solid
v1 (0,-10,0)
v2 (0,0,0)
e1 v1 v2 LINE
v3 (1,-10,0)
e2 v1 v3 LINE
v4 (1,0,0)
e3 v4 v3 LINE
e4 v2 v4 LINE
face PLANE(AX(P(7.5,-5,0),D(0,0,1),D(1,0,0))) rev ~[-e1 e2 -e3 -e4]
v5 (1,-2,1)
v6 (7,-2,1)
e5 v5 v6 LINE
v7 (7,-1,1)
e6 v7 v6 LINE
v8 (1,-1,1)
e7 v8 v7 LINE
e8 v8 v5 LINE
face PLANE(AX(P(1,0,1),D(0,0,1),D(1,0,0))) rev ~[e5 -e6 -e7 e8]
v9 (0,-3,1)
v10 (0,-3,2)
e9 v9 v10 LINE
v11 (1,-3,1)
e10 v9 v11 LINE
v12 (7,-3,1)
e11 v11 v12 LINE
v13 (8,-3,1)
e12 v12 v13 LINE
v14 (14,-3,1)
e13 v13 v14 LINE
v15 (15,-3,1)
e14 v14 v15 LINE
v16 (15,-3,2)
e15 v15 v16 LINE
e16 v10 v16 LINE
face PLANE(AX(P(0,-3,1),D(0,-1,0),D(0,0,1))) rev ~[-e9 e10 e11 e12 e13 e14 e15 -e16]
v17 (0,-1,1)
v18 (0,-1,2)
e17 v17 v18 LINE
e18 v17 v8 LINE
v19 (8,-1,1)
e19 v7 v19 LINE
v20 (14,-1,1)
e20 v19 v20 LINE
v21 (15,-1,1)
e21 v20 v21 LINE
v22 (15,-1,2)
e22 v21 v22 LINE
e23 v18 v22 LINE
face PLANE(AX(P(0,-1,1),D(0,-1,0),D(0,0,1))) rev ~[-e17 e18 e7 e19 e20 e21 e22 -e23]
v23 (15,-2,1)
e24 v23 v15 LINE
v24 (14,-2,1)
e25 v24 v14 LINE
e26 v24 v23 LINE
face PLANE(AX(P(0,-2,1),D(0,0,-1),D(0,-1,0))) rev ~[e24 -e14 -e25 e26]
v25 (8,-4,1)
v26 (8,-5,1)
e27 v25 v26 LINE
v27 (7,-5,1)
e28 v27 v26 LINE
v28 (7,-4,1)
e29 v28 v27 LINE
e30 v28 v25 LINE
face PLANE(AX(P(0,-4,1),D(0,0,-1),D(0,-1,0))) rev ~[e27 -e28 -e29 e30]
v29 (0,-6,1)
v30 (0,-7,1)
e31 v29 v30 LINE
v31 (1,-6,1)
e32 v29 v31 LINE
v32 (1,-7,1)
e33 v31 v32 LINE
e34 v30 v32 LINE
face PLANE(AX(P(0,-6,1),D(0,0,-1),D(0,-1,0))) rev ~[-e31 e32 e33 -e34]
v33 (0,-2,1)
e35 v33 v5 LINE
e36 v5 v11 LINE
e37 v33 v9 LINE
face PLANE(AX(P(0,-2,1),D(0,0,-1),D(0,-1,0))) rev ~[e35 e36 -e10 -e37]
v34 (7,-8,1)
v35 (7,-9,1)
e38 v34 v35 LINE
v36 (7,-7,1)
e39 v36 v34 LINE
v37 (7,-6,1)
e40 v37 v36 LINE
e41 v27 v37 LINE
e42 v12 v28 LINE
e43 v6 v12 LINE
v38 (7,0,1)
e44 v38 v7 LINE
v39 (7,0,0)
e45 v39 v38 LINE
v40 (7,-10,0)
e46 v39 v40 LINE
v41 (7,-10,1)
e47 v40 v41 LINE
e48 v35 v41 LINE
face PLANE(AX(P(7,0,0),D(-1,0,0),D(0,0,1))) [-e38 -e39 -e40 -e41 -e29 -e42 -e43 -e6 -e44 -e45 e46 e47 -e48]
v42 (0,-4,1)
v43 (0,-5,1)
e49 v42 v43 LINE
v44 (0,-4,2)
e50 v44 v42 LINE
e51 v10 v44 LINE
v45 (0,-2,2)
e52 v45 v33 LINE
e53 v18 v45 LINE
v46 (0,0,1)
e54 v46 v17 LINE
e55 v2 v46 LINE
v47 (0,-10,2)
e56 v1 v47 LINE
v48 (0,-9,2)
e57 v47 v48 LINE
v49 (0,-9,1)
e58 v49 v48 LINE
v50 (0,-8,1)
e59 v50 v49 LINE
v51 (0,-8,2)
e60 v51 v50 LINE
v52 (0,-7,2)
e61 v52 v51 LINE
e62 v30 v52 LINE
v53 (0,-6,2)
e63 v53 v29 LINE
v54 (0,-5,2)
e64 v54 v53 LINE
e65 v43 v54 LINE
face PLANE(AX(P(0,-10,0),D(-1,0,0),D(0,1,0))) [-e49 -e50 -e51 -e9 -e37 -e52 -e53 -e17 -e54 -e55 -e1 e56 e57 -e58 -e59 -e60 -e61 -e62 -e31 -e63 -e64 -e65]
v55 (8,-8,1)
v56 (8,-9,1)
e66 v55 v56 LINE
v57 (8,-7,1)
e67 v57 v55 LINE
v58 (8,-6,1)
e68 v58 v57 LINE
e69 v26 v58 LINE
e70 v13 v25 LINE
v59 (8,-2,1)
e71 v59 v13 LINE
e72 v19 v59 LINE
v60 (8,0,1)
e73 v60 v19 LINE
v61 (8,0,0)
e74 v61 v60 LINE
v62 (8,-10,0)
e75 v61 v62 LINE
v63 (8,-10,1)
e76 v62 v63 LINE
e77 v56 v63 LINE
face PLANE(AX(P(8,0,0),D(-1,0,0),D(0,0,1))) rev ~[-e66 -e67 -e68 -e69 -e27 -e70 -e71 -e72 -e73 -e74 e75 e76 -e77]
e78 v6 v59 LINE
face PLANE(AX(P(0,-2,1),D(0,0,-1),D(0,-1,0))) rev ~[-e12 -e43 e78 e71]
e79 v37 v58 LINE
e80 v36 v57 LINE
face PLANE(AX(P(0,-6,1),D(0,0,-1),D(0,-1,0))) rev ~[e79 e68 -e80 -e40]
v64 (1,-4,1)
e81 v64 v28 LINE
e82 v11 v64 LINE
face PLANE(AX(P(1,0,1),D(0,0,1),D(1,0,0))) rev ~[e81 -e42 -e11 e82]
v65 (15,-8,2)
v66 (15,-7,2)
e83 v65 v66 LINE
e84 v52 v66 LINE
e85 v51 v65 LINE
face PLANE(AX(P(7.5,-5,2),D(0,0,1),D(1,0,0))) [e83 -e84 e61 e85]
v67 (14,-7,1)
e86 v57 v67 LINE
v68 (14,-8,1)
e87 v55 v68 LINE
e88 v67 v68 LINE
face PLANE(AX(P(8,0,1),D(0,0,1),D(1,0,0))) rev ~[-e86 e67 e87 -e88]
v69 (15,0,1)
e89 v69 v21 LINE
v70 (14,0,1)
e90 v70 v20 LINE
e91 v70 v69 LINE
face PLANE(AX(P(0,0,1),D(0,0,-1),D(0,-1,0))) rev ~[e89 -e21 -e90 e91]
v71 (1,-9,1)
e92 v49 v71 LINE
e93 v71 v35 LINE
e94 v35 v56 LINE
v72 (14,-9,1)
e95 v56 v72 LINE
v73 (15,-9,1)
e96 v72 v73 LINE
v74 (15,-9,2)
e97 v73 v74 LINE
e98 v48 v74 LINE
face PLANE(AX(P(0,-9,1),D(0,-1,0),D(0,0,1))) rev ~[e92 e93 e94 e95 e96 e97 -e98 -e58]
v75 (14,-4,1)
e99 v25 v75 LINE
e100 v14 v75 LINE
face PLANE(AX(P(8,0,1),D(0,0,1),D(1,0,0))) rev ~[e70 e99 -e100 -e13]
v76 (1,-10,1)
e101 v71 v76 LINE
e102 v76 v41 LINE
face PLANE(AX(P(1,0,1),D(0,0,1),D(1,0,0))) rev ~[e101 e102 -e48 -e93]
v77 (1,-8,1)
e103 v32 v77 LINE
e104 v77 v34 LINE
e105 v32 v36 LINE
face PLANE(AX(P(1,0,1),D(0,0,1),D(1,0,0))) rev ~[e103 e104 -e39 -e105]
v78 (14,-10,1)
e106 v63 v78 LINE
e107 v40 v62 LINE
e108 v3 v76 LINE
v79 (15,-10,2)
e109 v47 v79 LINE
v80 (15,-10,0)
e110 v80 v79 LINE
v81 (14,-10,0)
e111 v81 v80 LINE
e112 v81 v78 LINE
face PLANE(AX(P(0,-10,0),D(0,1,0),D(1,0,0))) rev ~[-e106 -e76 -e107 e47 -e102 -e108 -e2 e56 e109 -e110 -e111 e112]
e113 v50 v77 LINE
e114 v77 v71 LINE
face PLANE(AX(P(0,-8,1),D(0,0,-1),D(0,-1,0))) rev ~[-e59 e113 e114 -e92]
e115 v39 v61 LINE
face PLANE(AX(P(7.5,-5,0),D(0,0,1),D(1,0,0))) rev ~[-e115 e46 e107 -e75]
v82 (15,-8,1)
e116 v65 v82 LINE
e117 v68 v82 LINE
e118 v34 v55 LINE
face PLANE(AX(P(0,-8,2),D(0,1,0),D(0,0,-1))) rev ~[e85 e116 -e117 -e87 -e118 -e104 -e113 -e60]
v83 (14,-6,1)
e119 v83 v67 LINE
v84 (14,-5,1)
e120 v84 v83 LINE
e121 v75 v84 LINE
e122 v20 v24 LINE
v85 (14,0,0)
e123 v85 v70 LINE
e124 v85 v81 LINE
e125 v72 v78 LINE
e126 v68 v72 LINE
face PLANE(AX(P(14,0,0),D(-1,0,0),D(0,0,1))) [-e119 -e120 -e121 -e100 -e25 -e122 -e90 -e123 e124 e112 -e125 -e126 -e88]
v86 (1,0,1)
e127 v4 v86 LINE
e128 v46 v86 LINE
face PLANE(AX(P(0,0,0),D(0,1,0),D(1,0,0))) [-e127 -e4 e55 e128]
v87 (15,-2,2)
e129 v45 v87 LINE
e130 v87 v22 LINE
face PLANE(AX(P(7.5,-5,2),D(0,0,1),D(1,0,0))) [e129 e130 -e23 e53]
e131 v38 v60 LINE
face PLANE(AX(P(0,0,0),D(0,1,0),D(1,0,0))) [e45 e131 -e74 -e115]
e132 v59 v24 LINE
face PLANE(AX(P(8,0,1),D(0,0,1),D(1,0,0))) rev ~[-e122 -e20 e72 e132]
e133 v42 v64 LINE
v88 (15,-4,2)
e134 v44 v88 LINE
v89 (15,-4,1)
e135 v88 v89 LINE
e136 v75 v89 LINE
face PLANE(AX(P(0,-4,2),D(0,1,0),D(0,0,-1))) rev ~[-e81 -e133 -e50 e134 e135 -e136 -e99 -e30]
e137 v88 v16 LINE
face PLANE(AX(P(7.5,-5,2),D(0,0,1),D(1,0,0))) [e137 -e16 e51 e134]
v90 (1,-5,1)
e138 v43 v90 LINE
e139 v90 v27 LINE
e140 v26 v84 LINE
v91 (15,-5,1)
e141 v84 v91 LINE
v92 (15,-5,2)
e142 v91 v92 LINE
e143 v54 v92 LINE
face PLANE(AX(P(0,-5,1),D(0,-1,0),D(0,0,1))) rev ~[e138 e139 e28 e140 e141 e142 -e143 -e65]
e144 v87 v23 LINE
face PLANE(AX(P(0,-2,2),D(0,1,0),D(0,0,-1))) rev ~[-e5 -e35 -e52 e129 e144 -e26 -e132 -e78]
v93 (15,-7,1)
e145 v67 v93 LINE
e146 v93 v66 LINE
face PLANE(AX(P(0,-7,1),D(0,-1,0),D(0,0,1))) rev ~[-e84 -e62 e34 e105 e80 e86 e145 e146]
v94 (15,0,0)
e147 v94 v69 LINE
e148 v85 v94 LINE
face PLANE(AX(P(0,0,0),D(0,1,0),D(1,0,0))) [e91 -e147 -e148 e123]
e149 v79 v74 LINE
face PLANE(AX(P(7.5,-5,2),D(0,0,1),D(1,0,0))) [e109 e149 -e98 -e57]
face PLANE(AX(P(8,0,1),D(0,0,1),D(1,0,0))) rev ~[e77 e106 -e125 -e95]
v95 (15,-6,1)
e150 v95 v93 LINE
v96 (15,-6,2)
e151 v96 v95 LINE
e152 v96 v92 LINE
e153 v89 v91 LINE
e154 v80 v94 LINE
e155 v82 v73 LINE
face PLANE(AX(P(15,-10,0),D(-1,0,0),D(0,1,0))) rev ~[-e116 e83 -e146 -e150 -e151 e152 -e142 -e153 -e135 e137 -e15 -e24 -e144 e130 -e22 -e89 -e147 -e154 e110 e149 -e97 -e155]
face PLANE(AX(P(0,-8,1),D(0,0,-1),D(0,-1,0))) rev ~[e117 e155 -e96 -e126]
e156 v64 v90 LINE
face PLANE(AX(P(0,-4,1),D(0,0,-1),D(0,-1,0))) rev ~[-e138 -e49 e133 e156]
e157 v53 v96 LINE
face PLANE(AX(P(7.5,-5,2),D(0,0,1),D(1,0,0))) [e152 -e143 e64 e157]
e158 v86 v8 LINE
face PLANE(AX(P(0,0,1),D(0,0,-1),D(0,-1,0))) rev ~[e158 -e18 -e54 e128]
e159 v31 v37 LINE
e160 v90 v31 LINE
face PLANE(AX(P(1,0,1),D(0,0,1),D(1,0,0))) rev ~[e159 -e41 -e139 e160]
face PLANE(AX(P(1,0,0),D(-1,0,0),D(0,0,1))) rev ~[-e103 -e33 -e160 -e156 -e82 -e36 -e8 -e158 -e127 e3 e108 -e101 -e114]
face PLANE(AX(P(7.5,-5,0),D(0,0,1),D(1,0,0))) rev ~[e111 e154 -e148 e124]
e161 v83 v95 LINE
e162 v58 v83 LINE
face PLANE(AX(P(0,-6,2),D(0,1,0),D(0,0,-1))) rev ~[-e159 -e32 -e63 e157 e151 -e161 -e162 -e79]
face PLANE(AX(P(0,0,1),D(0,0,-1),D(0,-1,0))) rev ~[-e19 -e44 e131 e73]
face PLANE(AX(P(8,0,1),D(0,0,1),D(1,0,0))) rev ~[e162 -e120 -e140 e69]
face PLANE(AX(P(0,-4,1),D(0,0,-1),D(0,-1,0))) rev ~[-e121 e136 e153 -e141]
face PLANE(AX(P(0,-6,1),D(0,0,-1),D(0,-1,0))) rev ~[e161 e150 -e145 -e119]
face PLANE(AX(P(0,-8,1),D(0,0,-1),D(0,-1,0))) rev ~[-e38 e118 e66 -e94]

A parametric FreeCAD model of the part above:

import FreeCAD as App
import Part
import Sketcher
from FreeCAD import Vector
Q = App.Units.Quantity

doc = App.newDocument("Part")
params = doc.addObject("Spreadsheet::Sheet", "Params")
for row, (alias, value) in enumerate([
    ("sketch1_width", "15 mm"),
    ("sketch1_height", "10 mm"),
    ("pad1_length", "2 mm"),
    ("sketch2_width", "6 mm"),
    ("sketch2_height", "1 mm"),
    ("pocket1_length", "25 mm"),
    ("sketch3_width", "1 mm"),
    ("sketch3_height", "2.5 mm"),
    ("pocket2_length", "25 mm"),
], start=1):
    params.set(f"A{row}", alias)
    params.set(f"B{row}", "=" + value)
    params.setAlias(f"B{row}", alias)

body = doc.addObject("PartDesign::Body", "Body")

sketch1 = body.newObject("Sketcher::SketchObject", "Sketch")
sketch1.AttachmentSupport = (doc.getObject("XY_Plane"), [""])
sketch1.MapMode = "FlatFace"
sketch1.addGeometry(Part.LineSegment(Vector(0, 0, 0), Vector(0, -10, 0)), False)
sketch1.addGeometry(Part.LineSegment(Vector(0, -10, 0), Vector(15, -10, 0)), False)
sketch1.addGeometry(Part.LineSegment(Vector(15, -10, 0), Vector(15, 0, 0)), False)
sketch1.addGeometry(Part.LineSegment(Vector(15, 0, 0), Vector(0, 0, 0)), False)
sketch1.addConstraint(Sketcher.Constraint("Coincident", 0, 2, 1, 1))
sketch1.addConstraint(Sketcher.Constraint("Coincident", 1, 2, 2, 1))
sketch1.addConstraint(Sketcher.Constraint("Coincident", 2, 2, 3, 1))
sketch1.addConstraint(Sketcher.Constraint("Coincident", 3, 2, 0, 1))
sketch1.addConstraint(Sketcher.Constraint("Vertical", 0))
sketch1.addConstraint(Sketcher.Constraint("Horizontal", 1))
sketch1.addConstraint(Sketcher.Constraint("Vertical", 2))
sketch1.addConstraint(Sketcher.Constraint("Horizontal", 3))
sketch1.addConstraint(Sketcher.Constraint("Coincident", 3, 2, -1, 1))
sketch1.addConstraint(Sketcher.Constraint("DistanceX", 1, 1, 1, 2, Q("15 mm")))
sketch1.addConstraint(Sketcher.Constraint("DistanceY", 0, 2, 0, 1, Q("10 mm")))
sketch1.setExpression("Constraints[9]", "Params.sketch1_width")
sketch1.setExpression("Constraints[10]", "Params.sketch1_height")
pad1 = body.newObject("PartDesign::Pad", "Pad")
pad1.Profile = sketch1
pad1.setExpression("Length", "Params.pad1_length")

sketch2 = body.newObject("Sketcher::SketchObject", "Sketch001")
sketch2.AttachmentSupport = (doc.getObject("XZ_Plane"), [""])
sketch2.MapMode = "FlatFace"
sketch2.addGeometry(Part.LineSegment(Vector(1, 1, 0), Vector(1, 0, 0)), False)
sketch2.addGeometry(Part.LineSegment(Vector(1, 0, 0), Vector(7, 0, 0)), False)
sketch2.addGeometry(Part.LineSegment(Vector(7, 0, 0), Vector(7, 1, 0)), False)
sketch2.addGeometry(Part.LineSegment(Vector(7, 1, 0), Vector(1, 1, 0)), False)
sketch2.addGeometry(Part.LineSegment(Vector(8, 1, 0), Vector(8, 0, 0)), False)
sketch2.addGeometry(Part.LineSegment(Vector(8, 0, 0), Vector(14, 0, 0)), False)
sketch2.addGeometry(Part.LineSegment(Vector(14, 0, 0), Vector(14, 1, 0)), False)
sketch2.addGeometry(Part.LineSegment(Vector(14, 1, 0), Vector(8, 1, 0)), False)
sketch2.addConstraint(Sketcher.Constraint("Coincident", 0, 2, 1, 1))
sketch2.addConstraint(Sketcher.Constraint("Coincident", 1, 2, 2, 1))
sketch2.addConstraint(Sketcher.Constraint("Coincident", 2, 2, 3, 1))
sketch2.addConstraint(Sketcher.Constraint("Coincident", 3, 2, 0, 1))
sketch2.addConstraint(Sketcher.Constraint("Coincident", 4, 2, 5, 1))
sketch2.addConstraint(Sketcher.Constraint("Coincident", 5, 2, 6, 1))
sketch2.addConstraint(Sketcher.Constraint("Coincident", 6, 2, 7, 1))
sketch2.addConstraint(Sketcher.Constraint("Coincident", 7, 2, 4, 1))
sketch2.addConstraint(Sketcher.Constraint("Vertical", 0))
sketch2.addConstraint(Sketcher.Constraint("Horizontal", 1))
sketch2.addConstraint(Sketcher.Constraint("Vertical", 2))
sketch2.addConstraint(Sketcher.Constraint("Horizontal", 3))
sketch2.addConstraint(Sketcher.Constraint("Vertical", 4))
sketch2.addConstraint(Sketcher.Constraint("Horizontal", 5))
sketch2.addConstraint(Sketcher.Constraint("Vertical", 6))
sketch2.addConstraint(Sketcher.Constraint("Horizontal", 7))
sketch2.addConstraint(Sketcher.Constraint("PointOnObject", 0, 2, -1))
sketch2.addConstraint(Sketcher.Constraint("PointOnObject", 4, 2, -1))
sketch2.addConstraint(Sketcher.Constraint("Horizontal", 3, 2, 6, 2))
sketch2.addConstraint(Sketcher.Constraint("Equal", 3, 5))
sketch2.addConstraint(Sketcher.Constraint("DistanceX", 1, 1, 1, 2, Q("6 mm")))
sketch2.addConstraint(Sketcher.Constraint("DistanceY", 0, 2, 0, 1, Q("1 mm")))
sketch2.addConstraint(Sketcher.Constraint("DistanceX", -1, 1, 0, 2, Q("1 mm")))
sketch2.addConstraint(Sketcher.Constraint("DistanceX", -1, 1, 4, 2, Q("8 mm")))
sketch2.setExpression("Constraints[20]", "Params.sketch2_width")
sketch2.setExpression("Constraints[21]", "Params.sketch2_height")
pocket1 = body.newObject("PartDesign::Pocket", "Pocket")
pocket1.Profile = sketch2
pocket1.setExpression("Length", "Params.pocket1_length")
pocket1.Reversed = True

sketch3 = body.newObject("Sketcher::SketchObject", "Sketch002")
sketch3.AttachmentSupport = (doc.getObject("YZ_Plane"), [""])
sketch3.MapMode = "FlatFace"
sketch3.addGeometry(Part.LineSegment(Vector(0, 3.5, 0), Vector(0, 1, 0)), False)
sketch3.addGeometry(Part.LineSegment(Vector(0, 1, 0), Vector(-1, 1, 0)), False)
sketch3.addGeometry(Part.LineSegment(Vector(-1, 1, 0), Vector(-1, 2, 0)), False)
sketch3.addGeometry(Part.LineSegment(Vector(-1, 2, 0), Vector(-2, 2, 0)), False)
sketch3.addGeometry(Part.LineSegment(Vector(-2, 2, 0), Vector(-2, 1, 0)), False)
sketch3.addGeometry(Part.LineSegment(Vector(-2, 1, 0), Vector(-3, 1, 0)), False)
sketch3.addGeometry(Part.LineSegment(Vector(-3, 1, 0), Vector(-3, 2, 0)), False)
sketch3.addGeometry(Part.LineSegment(Vector(-3, 2, 0), Vector(-4, 2, 0)), False)
sketch3.addGeometry(Part.LineSegment(Vector(-4, 2, 0), Vector(-4, 1, 0)), False)
sketch3.addGeometry(Part.LineSegment(Vector(-4, 1, 0), Vector(-5, 1, 0)), False)
sketch3.addGeometry(Part.LineSegment(Vector(-5, 1, 0), Vector(-5, 2, 0)), False)
sketch3.addGeometry(Part.LineSegment(Vector(-5, 2, 0), Vector(-6, 2, 0)), False)
sketch3.addGeometry(Part.LineSegment(Vector(-6, 2, 0), Vector(-6, 1, 0)), False)
sketch3.addGeometry(Part.LineSegment(Vector(-6, 1, 0), Vector(-7, 1, 0)), False)
sketch3.addGeometry(Part.LineSegment(Vector(-7, 1, 0), Vector(-7, 2, 0)), False)
sketch3.addGeometry(Part.LineSegment(Vector(-7, 2, 0), Vector(-8, 2, 0)), False)
sketch3.addGeometry(Part.LineSegment(Vector(-8, 2, 0), Vector(-8, 1, 0)), False)
sketch3.addGeometry(Part.LineSegment(Vector(-8, 1, 0), Vector(-9, 1, 0)), False)
sketch3.addGeometry(Part.LineSegment(Vector(-9, 1, 0), Vector(-9, 2, 0)), False)
sketch3.addGeometry(Part.LineSegment(Vector(-9, 2, 0), Vector(-10, 2, 0)), False)
sketch3.addGeometry(Part.LineSegment(Vector(-10, 2, 0), Vector(-10, 1, 0)), False)
sketch3.addGeometry(Part.LineSegment(Vector(-10, 1, 0), Vector(-10.7, 1, 0)), False)
sketch3.addGeometry(Part.LineSegment(Vector(-10.7, 1, 0), Vector(-10.7, 3.5, 0)), False)
sketch3.addGeometry(Part.LineSegment(Vector(-10.7, 3.5, 0), Vector(0, 3.5, 0)), False)
sketch3.addConstraint(Sketcher.Constraint("Coincident", 0, 2, 1, 1))
sketch3.addConstraint(Sketcher.Constraint("Coincident", 1, 2, 2, 1))
sketch3.addConstraint(Sketcher.Constraint("Coincident", 2, 2, 3, 1))
sketch3.addConstraint(Sketcher.Constraint("Coincident", 3, 2, 4, 1))
sketch3.addConstraint(Sketcher.Constraint("Coincident", 4, 2, 5, 1))
sketch3.addConstraint(Sketcher.Constraint("Coincident", 5, 2, 6, 1))
sketch3.addConstraint(Sketcher.Constraint("Coincident", 6, 2, 7, 1))
sketch3.addConstraint(Sketcher.Constraint("Coincident", 7, 2, 8, 1))
sketch3.addConstraint(Sketcher.Constraint("Coincident", 8, 2, 9, 1))
sketch3.addConstraint(Sketcher.Constraint("Coincident", 9, 2, 10, 1))
sketch3.addConstraint(Sketcher.Constraint("Coincident", 10, 2, 11, 1))
sketch3.addConstraint(Sketcher.Constraint("Coincident", 11, 2, 12, 1))
sketch3.addConstraint(Sketcher.Constraint("Coincident", 12, 2, 13, 1))
sketch3.addConstraint(Sketcher.Constraint("Coincident", 13, 2, 14, 1))
sketch3.addConstraint(Sketcher.Constraint("Coincident", 14, 2, 15, 1))
sketch3.addConstraint(Sketcher.Constraint("Coincident", 15, 2, 16, 1))
sketch3.addConstraint(Sketcher.Constraint("Coincident", 16, 2, 17, 1))
sketch3.addConstraint(Sketcher.Constraint("Coincident", 17, 2, 18, 1))
sketch3.addConstraint(Sketcher.Constraint("Coincident", 18, 2, 19, 1))
sketch3.addConstraint(Sketcher.Constraint("Coincident", 19, 2, 20, 1))
sketch3.addConstraint(Sketcher.Constraint("Coincident", 20, 2, 21, 1))
sketch3.addConstraint(Sketcher.Constraint("Coincident", 21, 2, 22, 1))
sketch3.addConstraint(Sketcher.Constraint("Coincident", 22, 2, 23, 1))
sketch3.addConstraint(Sketcher.Constraint("Coincident", 23, 2, 0, 1))
sketch3.addConstraint(Sketcher.Constraint("Vertical", 0))
sketch3.addConstraint(Sketcher.Constraint("Horizontal", 1))
sketch3.addConstraint(Sketcher.Constraint("Vertical", 2))
sketch3.addConstraint(Sketcher.Constraint("Horizontal", 3))
sketch3.addConstraint(Sketcher.Constraint("Vertical", 4))
sketch3.addConstraint(Sketcher.Constraint("Horizontal", 5))
sketch3.addConstraint(Sketcher.Constraint("Vertical", 6))
sketch3.addConstraint(Sketcher.Constraint("Horizontal", 7))
sketch3.addConstraint(Sketcher.Constraint("Vertical", 8))
sketch3.addConstraint(Sketcher.Constraint("Horizontal", 9))
sketch3.addConstraint(Sketcher.Constraint("Vertical", 10))
sketch3.addConstraint(Sketcher.Constraint("Horizontal", 11))
sketch3.addConstraint(Sketcher.Constraint("Vertical", 12))
sketch3.addConstraint(Sketcher.Constraint("Horizontal", 13))
sketch3.addConstraint(Sketcher.Constraint("Vertical", 14))
sketch3.addConstraint(Sketcher.Constraint("Horizontal", 15))
sketch3.addConstraint(Sketcher.Constraint("Vertical", 16))
sketch3.addConstraint(Sketcher.Constraint("Horizontal", 17))
sketch3.addConstraint(Sketcher.Constraint("Vertical", 18))
sketch3.addConstraint(Sketcher.Constraint("Horizontal", 19))
sketch3.addConstraint(Sketcher.Constraint("Vertical", 20))
sketch3.addConstraint(Sketcher.Constraint("Horizontal", 21))
sketch3.addConstraint(Sketcher.Constraint("Vertical", 22))
sketch3.addConstraint(Sketcher.Constraint("Horizontal", 23))
sketch3.addConstraint(Sketcher.Constraint("PointOnObject", 0, 2, -2))
sketch3.addConstraint(Sketcher.Constraint("Horizontal", 1, 2, 4, 2))
sketch3.addConstraint(Sketcher.Constraint("Horizontal", 3, 2, 6, 2))
sketch3.addConstraint(Sketcher.Constraint("Horizontal", 5, 2, 8, 2))
sketch3.addConstraint(Sketcher.Constraint("Horizontal", 7, 2, 10, 2))
sketch3.addConstraint(Sketcher.Constraint("Horizontal", 9, 2, 12, 2))
sketch3.addConstraint(Sketcher.Constraint("Horizontal", 11, 2, 14, 2))
sketch3.addConstraint(Sketcher.Constraint("Horizontal", 13, 2, 16, 2))
sketch3.addConstraint(Sketcher.Constraint("Horizontal", 15, 2, 18, 2))
sketch3.addConstraint(Sketcher.Constraint("Horizontal", 17, 2, 20, 2))
sketch3.addConstraint(Sketcher.Constraint("Equal", 1, 3))
sketch3.addConstraint(Sketcher.Constraint("Equal", 3, 5))
sketch3.addConstraint(Sketcher.Constraint("Equal", 5, 7))
sketch3.addConstraint(Sketcher.Constraint("Equal", 7, 9))
sketch3.addConstraint(Sketcher.Constraint("Equal", 9, 11))
sketch3.addConstraint(Sketcher.Constraint("Equal", 11, 13))
sketch3.addConstraint(Sketcher.Constraint("Equal", 13, 15))
sketch3.addConstraint(Sketcher.Constraint("Equal", 15, 17))
sketch3.addConstraint(Sketcher.Constraint("Equal", 17, 19))
sketch3.addConstraint(Sketcher.Constraint("Equal", 19, 2))
sketch3.addConstraint(Sketcher.Constraint("DistanceX", 1, 2, 1, 1, Q("1 mm")))
sketch3.addConstraint(Sketcher.Constraint("DistanceY", 0, 2, 0, 1, Q("2.5 mm")))
sketch3.addConstraint(Sketcher.Constraint("DistanceY", -1, 1, 0, 2, Q("1 mm")))
sketch3.addConstraint(Sketcher.Constraint("DistanceX", 21, 2, 21, 1, Q("0.680856 mm")))
sketch3.setExpression("Constraints[68]", "Params.sketch3_width")
sketch3.setExpression("Constraints[69]", "Params.sketch3_height")
pocket2 = body.newObject("PartDesign::Pocket", "Pocket001")
pocket2.Profile = sketch3
pocket2.setExpression("Length", "Params.pocket2_length")
pocket2.Reversed = True

doc.recompute()
